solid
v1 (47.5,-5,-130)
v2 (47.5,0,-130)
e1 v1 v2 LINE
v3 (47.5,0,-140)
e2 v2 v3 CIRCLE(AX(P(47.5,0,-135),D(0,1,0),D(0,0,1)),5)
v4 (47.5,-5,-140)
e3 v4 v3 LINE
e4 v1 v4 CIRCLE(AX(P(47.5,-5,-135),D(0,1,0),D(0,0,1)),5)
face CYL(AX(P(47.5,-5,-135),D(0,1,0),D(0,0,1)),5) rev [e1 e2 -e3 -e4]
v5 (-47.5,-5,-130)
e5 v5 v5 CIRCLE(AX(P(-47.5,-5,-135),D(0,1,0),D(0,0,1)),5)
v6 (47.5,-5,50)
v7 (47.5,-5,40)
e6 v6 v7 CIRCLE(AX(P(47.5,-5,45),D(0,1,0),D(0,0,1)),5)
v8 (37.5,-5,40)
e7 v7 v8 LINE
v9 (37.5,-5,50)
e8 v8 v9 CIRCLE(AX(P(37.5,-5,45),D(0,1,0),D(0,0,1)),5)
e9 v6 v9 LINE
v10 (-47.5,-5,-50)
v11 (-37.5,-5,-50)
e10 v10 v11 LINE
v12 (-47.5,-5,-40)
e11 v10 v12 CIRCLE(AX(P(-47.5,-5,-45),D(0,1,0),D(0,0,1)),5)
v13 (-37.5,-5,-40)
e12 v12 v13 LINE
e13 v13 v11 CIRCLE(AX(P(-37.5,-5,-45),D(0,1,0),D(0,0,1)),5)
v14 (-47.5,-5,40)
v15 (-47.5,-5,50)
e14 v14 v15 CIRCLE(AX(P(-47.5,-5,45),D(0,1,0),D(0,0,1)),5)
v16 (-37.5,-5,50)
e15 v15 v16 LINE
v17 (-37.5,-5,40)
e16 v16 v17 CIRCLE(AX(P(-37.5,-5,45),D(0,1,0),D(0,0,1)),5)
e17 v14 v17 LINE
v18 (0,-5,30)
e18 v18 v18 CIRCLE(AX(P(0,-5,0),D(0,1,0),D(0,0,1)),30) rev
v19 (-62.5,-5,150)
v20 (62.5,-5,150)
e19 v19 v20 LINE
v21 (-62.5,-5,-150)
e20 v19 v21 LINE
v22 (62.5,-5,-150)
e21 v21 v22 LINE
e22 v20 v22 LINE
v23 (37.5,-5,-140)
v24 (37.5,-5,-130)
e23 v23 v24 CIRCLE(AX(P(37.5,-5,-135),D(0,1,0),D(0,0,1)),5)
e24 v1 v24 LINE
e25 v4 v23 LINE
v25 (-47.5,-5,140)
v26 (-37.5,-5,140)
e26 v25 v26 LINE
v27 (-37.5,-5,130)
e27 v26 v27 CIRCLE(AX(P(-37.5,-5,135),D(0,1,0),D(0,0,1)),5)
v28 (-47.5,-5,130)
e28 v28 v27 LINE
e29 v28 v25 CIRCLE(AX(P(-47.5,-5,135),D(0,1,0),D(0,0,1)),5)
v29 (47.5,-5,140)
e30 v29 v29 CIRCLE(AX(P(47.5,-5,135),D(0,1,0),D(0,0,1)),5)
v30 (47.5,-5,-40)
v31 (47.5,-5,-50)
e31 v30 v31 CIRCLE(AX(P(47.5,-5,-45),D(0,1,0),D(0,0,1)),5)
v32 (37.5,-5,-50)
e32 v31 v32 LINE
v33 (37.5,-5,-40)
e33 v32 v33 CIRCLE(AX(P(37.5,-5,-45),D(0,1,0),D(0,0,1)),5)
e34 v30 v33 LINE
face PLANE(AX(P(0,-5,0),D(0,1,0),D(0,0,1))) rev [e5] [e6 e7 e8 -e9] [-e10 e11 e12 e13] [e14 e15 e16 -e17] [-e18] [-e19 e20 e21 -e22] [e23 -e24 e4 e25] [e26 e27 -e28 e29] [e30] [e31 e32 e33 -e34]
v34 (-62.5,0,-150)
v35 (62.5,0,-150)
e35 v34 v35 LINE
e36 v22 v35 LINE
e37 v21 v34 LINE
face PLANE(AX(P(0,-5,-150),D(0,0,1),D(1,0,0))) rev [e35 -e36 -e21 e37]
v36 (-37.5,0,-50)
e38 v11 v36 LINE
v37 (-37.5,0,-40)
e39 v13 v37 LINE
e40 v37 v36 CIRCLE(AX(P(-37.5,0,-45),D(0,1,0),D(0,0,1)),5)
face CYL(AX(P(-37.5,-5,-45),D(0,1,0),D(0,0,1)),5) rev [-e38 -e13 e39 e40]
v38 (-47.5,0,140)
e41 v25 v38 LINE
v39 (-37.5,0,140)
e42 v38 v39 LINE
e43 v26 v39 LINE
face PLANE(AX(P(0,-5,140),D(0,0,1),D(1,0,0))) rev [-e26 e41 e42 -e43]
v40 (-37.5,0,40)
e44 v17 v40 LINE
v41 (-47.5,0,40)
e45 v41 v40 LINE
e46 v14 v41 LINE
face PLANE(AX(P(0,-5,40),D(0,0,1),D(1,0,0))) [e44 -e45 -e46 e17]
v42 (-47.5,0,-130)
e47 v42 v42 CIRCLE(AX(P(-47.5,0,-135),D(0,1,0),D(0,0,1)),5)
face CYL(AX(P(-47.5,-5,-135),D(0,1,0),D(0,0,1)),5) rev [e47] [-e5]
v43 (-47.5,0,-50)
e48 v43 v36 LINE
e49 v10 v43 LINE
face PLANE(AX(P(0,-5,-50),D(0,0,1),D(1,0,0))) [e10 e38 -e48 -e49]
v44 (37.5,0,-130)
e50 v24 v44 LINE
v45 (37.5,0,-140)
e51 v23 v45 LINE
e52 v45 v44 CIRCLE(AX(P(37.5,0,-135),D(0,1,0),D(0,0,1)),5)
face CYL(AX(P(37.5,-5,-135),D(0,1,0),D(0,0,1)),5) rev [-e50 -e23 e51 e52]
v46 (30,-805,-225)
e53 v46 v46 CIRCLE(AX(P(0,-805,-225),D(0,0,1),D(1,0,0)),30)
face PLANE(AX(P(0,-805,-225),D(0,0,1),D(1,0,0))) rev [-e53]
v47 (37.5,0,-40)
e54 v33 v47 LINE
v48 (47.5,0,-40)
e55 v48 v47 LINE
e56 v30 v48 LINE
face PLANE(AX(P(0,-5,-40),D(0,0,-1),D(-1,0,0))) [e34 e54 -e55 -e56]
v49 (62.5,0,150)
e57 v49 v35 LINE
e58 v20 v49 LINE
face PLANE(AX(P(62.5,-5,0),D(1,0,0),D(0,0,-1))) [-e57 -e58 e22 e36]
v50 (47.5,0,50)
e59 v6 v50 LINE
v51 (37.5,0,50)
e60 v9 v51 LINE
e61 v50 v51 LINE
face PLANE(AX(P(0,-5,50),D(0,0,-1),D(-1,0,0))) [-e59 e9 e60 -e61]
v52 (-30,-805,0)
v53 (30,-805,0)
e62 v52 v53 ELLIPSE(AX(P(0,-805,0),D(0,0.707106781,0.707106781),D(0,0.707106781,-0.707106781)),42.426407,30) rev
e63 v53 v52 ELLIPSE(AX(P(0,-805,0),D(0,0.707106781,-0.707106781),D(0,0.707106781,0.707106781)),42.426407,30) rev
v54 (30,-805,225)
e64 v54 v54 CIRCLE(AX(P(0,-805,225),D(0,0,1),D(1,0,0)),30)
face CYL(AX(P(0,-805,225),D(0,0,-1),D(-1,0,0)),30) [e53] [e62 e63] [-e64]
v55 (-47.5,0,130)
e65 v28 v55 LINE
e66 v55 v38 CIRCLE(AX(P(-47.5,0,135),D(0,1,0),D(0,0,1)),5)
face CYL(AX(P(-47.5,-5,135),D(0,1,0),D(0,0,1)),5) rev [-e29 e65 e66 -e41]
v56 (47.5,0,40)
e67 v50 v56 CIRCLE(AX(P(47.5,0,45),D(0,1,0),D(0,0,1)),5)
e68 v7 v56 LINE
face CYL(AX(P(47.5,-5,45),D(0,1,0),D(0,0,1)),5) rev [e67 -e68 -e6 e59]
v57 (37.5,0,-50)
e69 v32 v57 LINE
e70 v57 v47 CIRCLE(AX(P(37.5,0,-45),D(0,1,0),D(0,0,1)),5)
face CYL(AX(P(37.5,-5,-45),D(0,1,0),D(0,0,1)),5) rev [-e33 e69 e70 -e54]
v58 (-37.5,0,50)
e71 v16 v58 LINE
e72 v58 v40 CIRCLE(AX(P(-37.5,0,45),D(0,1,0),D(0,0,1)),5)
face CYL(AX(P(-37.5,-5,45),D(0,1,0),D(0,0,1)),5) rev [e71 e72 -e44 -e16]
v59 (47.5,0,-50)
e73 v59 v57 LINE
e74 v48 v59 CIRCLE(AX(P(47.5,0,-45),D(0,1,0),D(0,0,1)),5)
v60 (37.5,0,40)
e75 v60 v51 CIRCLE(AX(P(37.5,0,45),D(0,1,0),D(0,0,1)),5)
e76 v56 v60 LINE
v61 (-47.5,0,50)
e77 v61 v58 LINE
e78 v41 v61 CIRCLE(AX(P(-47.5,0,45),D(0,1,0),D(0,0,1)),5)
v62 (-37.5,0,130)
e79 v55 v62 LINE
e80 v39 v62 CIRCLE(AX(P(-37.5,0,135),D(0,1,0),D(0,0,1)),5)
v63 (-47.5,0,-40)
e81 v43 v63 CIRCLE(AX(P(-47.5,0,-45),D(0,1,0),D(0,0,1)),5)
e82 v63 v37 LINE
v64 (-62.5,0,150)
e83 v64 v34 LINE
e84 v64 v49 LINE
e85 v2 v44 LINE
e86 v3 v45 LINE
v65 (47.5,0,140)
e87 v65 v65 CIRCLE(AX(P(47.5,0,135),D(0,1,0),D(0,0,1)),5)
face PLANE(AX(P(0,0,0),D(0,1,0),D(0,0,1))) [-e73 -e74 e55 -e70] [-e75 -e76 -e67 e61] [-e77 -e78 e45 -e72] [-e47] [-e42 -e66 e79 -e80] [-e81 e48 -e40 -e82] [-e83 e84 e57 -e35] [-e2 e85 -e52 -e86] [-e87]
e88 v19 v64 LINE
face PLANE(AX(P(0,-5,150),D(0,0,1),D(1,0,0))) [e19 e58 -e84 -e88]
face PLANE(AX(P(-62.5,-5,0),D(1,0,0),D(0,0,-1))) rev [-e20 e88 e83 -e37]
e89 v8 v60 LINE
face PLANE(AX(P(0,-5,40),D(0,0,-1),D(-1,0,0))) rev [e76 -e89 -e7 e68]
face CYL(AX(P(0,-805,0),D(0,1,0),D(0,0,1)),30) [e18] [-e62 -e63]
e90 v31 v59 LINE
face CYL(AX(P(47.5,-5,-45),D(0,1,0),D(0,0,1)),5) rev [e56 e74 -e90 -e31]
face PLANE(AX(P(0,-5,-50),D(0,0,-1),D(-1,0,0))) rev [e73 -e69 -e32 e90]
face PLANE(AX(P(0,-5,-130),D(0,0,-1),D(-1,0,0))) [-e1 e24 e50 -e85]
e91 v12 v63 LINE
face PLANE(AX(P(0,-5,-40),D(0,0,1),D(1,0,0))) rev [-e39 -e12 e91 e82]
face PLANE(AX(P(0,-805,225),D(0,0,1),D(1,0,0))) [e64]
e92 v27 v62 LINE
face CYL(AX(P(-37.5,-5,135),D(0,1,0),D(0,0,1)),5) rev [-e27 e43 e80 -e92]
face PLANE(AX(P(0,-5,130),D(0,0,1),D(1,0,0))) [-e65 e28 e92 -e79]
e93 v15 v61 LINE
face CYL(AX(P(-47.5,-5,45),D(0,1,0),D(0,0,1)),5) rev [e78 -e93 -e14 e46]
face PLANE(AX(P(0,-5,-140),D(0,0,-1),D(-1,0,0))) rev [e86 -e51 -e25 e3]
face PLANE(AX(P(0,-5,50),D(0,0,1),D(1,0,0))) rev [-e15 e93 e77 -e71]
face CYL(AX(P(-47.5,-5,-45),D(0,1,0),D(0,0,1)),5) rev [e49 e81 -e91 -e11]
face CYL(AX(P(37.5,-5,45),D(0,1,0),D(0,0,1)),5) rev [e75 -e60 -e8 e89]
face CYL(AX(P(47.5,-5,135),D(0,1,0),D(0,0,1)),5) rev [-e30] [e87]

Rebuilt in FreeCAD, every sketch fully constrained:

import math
import FreeCAD as App
import Part
import Sketcher
from FreeCAD import Vector
Q = App.Units.Quantity

doc = App.newDocument("Part")
body = doc.addObject("PartDesign::Body", "Body")

sketch1 = body.newObject("Sketcher::SketchObject", "Sketch")
sketch1.AttachmentSupport = (doc.getObject("XZ_Plane"), [""])
sketch1.MapMode = "FlatFace"
sketch1.addGeometry([
    Part.LineSegment(Vector(-62, -150, 0), Vector(-62, 150, 0)),
    Part.LineSegment(Vector(-62, 150, 0), Vector(62, 150, 0)),
    Part.LineSegment(Vector(62, 150, 0), Vector(62, -150, 0)),
    Part.LineSegment(Vector(62, -150, 0), Vector(-62, -150, 0)),
    Part.ArcOfCircle(Part.Circle(Vector(-48, 135, 0), Vector(0, 0, 1), 5), math.radians(90), math.radians(270)),
    Part.LineSegment(Vector(-48, 130, 0), Vector(-38, 130, 0)),
    Part.ArcOfCircle(Part.Circle(Vector(-38, 135, 0), Vector(0, 0, 1), 5), math.radians(-90), math.radians(90)),
    Part.LineSegment(Vector(-38, 140, 0), Vector(-48, 140, 0)),
    Part.ArcOfCircle(Part.Circle(Vector(-48, 45, 0), Vector(0, 0, 1), 5), math.radians(90), math.radians(270)),
    Part.LineSegment(Vector(-48, 40, 0), Vector(-38, 40, 0)),
    Part.ArcOfCircle(Part.Circle(Vector(-38, 45, 0), Vector(0, 0, 1), 5), math.radians(-90), math.radians(90)),
    Part.LineSegment(Vector(-38, 50, 0), Vector(-48, 50, 0)),
    Part.Circle(Vector(48, 135, 0), Vector(0, 0, 1), 5),
    Part.ArcOfCircle(Part.Circle(Vector(48, 45, 0), Vector(0, 0, 1), 5), math.radians(-90), math.radians(90)),
    Part.LineSegment(Vector(48, 50, 0), Vector(38, 50, 0)),
    Part.ArcOfCircle(Part.Circle(Vector(38, 45, 0), Vector(0, 0, 1), 5), math.radians(90), math.radians(270)),
    Part.LineSegment(Vector(38, 40, 0), Vector(48, 40, 0)),
    Part.ArcOfCircle(Part.Circle(Vector(-48, -45, 0), Vector(0, 0, 1), 5), math.radians(90), math.radians(270)),
    Part.LineSegment(Vector(-48, -50, 0), Vector(-38, -50, 0)),
    Part.ArcOfCircle(Part.Circle(Vector(-38, -45, 0), Vector(0, 0, 1), 5), math.radians(-90), math.radians(90)),
    Part.LineSegment(Vector(-38, -40, 0), Vector(-48, -40, 0)),
    Part.Circle(Vector(-48, -135, 0), Vector(0, 0, 1), 5),
    Part.ArcOfCircle(Part.Circle(Vector(48, -45, 0), Vector(0, 0, 1), 5), math.radians(-90), math.radians(90)),
    Part.LineSegment(Vector(48, -40, 0), Vector(38, -40, 0)),
    Part.ArcOfCircle(Part.Circle(Vector(38, -45, 0), Vector(0, 0, 1), 5), math.radians(90), math.radians(270)),
    Part.LineSegment(Vector(38, -50, 0), Vector(48, -50, 0)),
    Part.ArcOfCircle(Part.Circle(Vector(48, -135, 0), Vector(0, 0, 1), 5), math.radians(-90), math.radians(90)),
    Part.LineSegment(Vector(48, -130, 0), Vector(38, -130, 0)),
    Part.ArcOfCircle(Part.Circle(Vector(38, -135, 0), Vector(0, 0, 1), 5), math.radians(90), math.radians(270)),
    Part.LineSegment(Vector(38, -140, 0), Vector(48, -140, 0)),
], False)
sketch1.addConstraint([
    Sketcher.Constraint("Coincident", 0, 2, 1, 1),
    Sketcher.Constraint("Coincident", 1, 2, 2, 1),
    Sketcher.Constraint("Coincident", 2, 2, 3, 1),
    Sketcher.Constraint("Coincident", 3, 2, 0, 1),
    Sketcher.Constraint("Tangent", 4, 2, 5, 1),
    Sketcher.Constraint("Tangent", 5, 2, 6, 1),
    Sketcher.Constraint("Tangent", 6, 2, 7, 1),
    Sketcher.Constraint("Tangent", 7, 2, 4, 1),
    Sketcher.Constraint("Tangent", 8, 2, 9, 1),
    Sketcher.Constraint("Tangent", 9, 2, 10, 1),
    Sketcher.Constraint("Tangent", 10, 2, 11, 1),
    Sketcher.Constraint("Tangent", 11, 2, 8, 1),
    Sketcher.Constraint("Tangent", 13, 2, 14, 1),
    Sketcher.Constraint("Tangent", 14, 2, 15, 1),
    Sketcher.Constraint("Tangent", 15, 2, 16, 1),
    Sketcher.Constraint("Tangent", 16, 2, 13, 1),
    Sketcher.Constraint("Tangent", 17, 2, 18, 1),
    Sketcher.Constraint("Tangent", 18, 2, 19, 1),
    Sketcher.Constraint("Tangent", 19, 2, 20, 1),
    Sketcher.Constraint("Tangent", 20, 2, 17, 1),
    Sketcher.Constraint("Tangent", 22, 2, 23, 1),
    Sketcher.Constraint("Tangent", 23, 2, 24, 1),
    Sketcher.Constraint("Tangent", 24, 2, 25, 1),
    Sketcher.Constraint("Tangent", 25, 2, 22, 1),
    Sketcher.Constraint("Tangent", 26, 2, 27, 1),
    Sketcher.Constraint("Tangent", 27, 2, 28, 1),
    Sketcher.Constraint("Tangent", 28, 2, 29, 1),
    Sketcher.Constraint("Tangent", 29, 2, 26, 1),
    Sketcher.Constraint("Vertical", 0),
    Sketcher.Constraint("Horizontal", 1),
    Sketcher.Constraint("Vertical", 2),
    Sketcher.Constraint("Horizontal", 3),
    Sketcher.Constraint("Horizontal", 5),
    Sketcher.Constraint("Horizontal", 7),
    Sketcher.Constraint("Horizontal", 9),
    Sketcher.Constraint("Horizontal", 11),
    Sketcher.Constraint("Horizontal", 14),
    Sketcher.Constraint("Horizontal", 16),
    Sketcher.Constraint("Horizontal", 18),
    Sketcher.Constraint("Horizontal", 20),
    Sketcher.Constraint("Horizontal", 23),
    Sketcher.Constraint("Horizontal", 25),
    Sketcher.Constraint("Horizontal", 27),
    Sketcher.Constraint("Horizontal", 29),
    Sketcher.Constraint("Equal", 6, 8),
    Sketcher.Constraint("Equal", 10, 12),
    Sketcher.Constraint("Equal", 12, 13),
    Sketcher.Constraint("Equal", 15, 17),
    Sketcher.Constraint("Equal", 19, 21),
    Sketcher.Constraint("Equal", 21, 22),
    Sketcher.Constraint("Equal", 24, 26),
    Sketcher.Constraint("Symmetric", 13, 3, 17, 3, -1, 1),
    Sketcher.Constraint("Symmetric", 12, 3, 21, 3, -1, 1),
    Sketcher.Constraint("Symmetric", 8, 3, 22, 3, -1, 1),
    Sketcher.Constraint("Symmetric", 4, 3, 26, 3, -1, 1),
    Sketcher.Constraint("Symmetric", 0, 2, 2, 2, -1, 1),
    Sketcher.Constraint("Symmetric", 4, 3, 12, 3, -2),
    Sketcher.Constraint("Symmetric", 8, 3, 13, 3, -2),
    Sketcher.Constraint("Vertical", 4, 3, 8, 3),
    Sketcher.Constraint("Vertical", 6, 3, 10, 3),
    Sketcher.Constraint("Vertical", 10, 3, 19, 3),
    Sketcher.Constraint("Vertical", 15, 3, 24, 3),
    Sketcher.Constraint("Vertical", 24, 3, 28, 3),
    Sketcher.Constraint("Equal", 11, 14),
    Sketcher.Constraint("Diameter", 12, Q("10 mm")),
    Sketcher.Constraint("DistanceX", 1, 1, 1, 2, Q("125 mm")),
    Sketcher.Constraint("DistanceX", 5, 1, 5, 2, Q("10 mm")),
    Sketcher.Constraint("DistanceY", 0, 1, 0, 2, Q("300 mm")),
    Sketcher.Constraint("DistanceY", -1, 1, 4, 3, Q("135 mm")),
    Sketcher.Constraint("DistanceY", -1, 1, 8, 3, Q("45 mm")),
    Sketcher.Constraint("DistanceX", 6, 3, 12, 3, Q("85 mm")),
])
pad1 = body.newObject("PartDesign::Pad", "Pad")
pad1.Profile = sketch1
pad1.Length = 5

sketch2 = body.newObject("Sketcher::SketchObject", "Sketch001")
sketch2.AttachmentSupport = (doc.getObject("XZ_Plane"), [""])
sketch2.MapMode = "FlatFace"
sketch2.AttachmentOffset = App.Placement(Vector(0, 0, 5), App.Rotation())
sketch2.addGeometry(Part.Circle(Vector(0, 0, 0), Vector(0, 0, 1), 30), False)
sketch2.addConstraint([
    Sketcher.Constraint("Coincident", 0, 3, -1, 1),
    Sketcher.Constraint("Diameter", 0, Q("60 mm")),
])
pad2 = body.newObject("PartDesign::Pad", "Pad001")
pad2.Profile = sketch2
pad2.Length = 800

sketch3 = body.newObject("Sketcher::SketchObject", "Sketch002")
sketch3.AttachmentSupport = (doc.getObject("XY_Plane"), [""])
sketch3.MapMode = "FlatFace"
sketch3.addGeometry(Part.Circle(Vector(0, -805, 0), Vector(0, 0, 1), 30), False)
sketch3.addConstraint([
    Sketcher.Constraint("PointOnObject", 0, 3, -2),
    Sketcher.Constraint("Diameter", 0, Q("60 mm")),
    Sketcher.Constraint("DistanceY", 0, 3, -1, 1, Q("805 mm")),
])
pad3 = body.newObject("PartDesign::Pad", "Pad002")
pad3.Profile = sketch3
pad3.Length = 450
pad3.Midplane = True

doc.recompute()
